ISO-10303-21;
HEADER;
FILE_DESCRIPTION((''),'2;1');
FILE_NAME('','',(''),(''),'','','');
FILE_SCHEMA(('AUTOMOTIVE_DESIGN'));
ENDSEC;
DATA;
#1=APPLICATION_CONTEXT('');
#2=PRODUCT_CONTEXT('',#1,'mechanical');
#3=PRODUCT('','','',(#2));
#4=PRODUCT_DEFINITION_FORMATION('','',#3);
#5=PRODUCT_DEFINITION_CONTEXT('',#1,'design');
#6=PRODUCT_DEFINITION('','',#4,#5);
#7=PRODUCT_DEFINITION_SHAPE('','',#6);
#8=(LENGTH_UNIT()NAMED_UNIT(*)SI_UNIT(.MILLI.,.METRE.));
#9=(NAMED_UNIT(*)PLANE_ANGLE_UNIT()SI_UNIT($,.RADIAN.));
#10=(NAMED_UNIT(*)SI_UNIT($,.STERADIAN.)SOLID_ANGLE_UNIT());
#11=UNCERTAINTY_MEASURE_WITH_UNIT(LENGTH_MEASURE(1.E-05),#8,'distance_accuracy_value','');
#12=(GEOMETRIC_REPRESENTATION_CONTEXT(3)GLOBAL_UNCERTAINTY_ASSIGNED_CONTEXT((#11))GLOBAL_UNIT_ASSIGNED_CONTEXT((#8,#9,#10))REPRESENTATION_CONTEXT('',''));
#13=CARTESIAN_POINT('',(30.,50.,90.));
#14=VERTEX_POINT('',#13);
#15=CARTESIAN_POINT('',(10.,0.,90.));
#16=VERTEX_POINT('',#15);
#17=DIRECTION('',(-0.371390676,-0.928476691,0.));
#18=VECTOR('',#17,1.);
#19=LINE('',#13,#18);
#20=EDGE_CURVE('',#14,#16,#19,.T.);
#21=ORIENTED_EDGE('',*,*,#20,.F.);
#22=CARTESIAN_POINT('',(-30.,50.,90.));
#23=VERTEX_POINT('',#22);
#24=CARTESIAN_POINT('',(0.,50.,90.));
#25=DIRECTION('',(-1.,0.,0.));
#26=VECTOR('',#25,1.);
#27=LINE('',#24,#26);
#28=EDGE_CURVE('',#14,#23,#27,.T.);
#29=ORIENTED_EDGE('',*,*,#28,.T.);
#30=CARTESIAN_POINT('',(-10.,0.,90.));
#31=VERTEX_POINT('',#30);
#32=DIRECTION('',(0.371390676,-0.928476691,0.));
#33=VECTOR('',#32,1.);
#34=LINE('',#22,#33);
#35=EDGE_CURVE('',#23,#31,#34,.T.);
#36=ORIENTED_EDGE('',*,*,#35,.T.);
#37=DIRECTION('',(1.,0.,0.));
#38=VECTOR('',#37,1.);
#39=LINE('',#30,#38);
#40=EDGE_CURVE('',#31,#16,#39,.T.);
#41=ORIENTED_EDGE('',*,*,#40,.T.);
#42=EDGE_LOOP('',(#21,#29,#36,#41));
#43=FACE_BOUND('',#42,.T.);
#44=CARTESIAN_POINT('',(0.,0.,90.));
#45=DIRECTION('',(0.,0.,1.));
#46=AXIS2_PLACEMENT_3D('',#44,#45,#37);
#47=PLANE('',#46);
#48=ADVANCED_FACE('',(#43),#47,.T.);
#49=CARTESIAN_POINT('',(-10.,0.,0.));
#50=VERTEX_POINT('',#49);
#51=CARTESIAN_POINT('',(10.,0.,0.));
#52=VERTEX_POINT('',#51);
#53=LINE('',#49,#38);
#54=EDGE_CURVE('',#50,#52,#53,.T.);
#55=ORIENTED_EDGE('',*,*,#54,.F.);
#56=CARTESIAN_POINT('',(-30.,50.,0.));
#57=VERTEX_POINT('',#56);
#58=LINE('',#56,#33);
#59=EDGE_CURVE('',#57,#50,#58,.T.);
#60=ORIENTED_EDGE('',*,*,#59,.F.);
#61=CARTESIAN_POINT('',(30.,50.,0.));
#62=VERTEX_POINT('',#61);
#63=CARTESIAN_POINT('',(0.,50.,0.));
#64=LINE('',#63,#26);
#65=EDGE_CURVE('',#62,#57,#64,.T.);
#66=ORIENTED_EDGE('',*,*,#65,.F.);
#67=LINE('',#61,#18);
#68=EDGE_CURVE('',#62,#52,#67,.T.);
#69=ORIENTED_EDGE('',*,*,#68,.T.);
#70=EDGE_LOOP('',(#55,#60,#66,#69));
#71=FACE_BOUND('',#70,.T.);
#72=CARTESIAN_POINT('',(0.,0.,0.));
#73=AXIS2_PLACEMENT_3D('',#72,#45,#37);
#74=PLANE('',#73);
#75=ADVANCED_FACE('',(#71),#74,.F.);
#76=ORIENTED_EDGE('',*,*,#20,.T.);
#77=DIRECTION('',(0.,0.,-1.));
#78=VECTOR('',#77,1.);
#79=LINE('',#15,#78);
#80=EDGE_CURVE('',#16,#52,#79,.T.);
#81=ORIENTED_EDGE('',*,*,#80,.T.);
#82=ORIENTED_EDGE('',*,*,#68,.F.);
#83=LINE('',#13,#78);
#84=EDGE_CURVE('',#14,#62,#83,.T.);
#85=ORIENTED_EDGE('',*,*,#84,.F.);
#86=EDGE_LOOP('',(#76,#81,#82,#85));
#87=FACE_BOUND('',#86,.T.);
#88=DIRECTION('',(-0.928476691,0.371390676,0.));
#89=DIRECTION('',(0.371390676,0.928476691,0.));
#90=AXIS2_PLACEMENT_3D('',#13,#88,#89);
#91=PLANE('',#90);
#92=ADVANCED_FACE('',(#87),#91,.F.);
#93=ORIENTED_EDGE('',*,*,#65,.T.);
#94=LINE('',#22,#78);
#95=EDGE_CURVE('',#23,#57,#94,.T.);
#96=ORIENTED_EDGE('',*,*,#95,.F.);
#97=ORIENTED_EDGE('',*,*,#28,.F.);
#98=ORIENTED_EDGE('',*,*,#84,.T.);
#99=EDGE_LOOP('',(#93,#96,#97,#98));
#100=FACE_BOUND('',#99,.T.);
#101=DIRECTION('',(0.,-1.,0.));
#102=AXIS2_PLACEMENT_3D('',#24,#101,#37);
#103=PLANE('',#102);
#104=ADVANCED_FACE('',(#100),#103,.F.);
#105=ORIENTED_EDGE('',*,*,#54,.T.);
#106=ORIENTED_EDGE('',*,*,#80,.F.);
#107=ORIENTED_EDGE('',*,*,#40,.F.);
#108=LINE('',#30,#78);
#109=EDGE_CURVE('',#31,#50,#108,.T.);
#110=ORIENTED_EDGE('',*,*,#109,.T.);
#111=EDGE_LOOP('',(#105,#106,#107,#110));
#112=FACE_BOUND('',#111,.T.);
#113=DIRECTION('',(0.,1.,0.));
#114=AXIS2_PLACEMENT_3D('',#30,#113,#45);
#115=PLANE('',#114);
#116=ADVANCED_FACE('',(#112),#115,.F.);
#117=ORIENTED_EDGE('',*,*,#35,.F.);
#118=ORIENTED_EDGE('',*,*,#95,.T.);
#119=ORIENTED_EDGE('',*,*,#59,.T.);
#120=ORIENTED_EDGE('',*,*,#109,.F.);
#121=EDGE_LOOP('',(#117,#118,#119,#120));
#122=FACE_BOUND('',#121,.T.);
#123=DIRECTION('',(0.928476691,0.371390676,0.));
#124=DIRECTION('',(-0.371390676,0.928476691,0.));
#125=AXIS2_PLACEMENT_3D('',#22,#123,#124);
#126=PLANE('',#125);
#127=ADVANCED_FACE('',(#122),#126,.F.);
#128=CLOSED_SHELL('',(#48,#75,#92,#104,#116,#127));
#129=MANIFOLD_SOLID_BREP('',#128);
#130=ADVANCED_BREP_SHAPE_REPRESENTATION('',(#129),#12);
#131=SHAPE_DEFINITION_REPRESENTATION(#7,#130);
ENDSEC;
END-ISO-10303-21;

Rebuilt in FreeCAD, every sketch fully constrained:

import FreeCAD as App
import Part
import Sketcher
from FreeCAD import Vector
Q = App.Units.Quantity

doc = App.newDocument("Part")
body = doc.addObject("PartDesign::Body", "Body")

sketch1 = doc.addObject("Sketcher::SketchObject", "Sketch")
body.addObject(sketch1)
sketch1.AttachmentSupport = (doc.XY_Plane, [""])
sketch1.MapMode = "FlatFace"
sketch1.addGeometry(Part.LineSegment(Vector(0, 0, 0), Vector(0, 50, 0)), False)
sketch1.addGeometry(Part.LineSegment(Vector(0, 50, 0), Vector(-30, 50, 0)), False)
sketch1.addGeometry(Part.LineSegment(Vector(-30, 50, 0), Vector(-10, 0, 0)), False)
sketch1.addGeometry(Part.LineSegment(Vector(-10, 0, 0), Vector(0, 0, 0)), False)
sketch1.addConstraint(Sketcher.Constraint("Coincident", 0, 2, 1, 1))
sketch1.addConstraint(Sketcher.Constraint("Coincident", 1, 2, 2, 1))
sketch1.addConstraint(Sketcher.Constraint("Coincident", 2, 2, 3, 1))
sketch1.addConstraint(Sketcher.Constraint("Coincident", 3, 2, 0, 1))
sketch1.addConstraint(Sketcher.Constraint("Vertical", 0))
sketch1.addConstraint(Sketcher.Constraint("Horizontal", 1))
sketch1.addConstraint(Sketcher.Constraint("Horizontal", 3))
sketch1.addConstraint(Sketcher.Constraint("Coincident", 3, 2, -1, 1))
sketch1.addConstraint(Sketcher.Constraint("DistanceX", 1, 2, 1, 1, Q("30 mm")))
sketch1.addConstraint(Sketcher.Constraint("DistanceX", 3, 1, 3, 2, Q("10 mm")))
sketch1.addConstraint(Sketcher.Constraint("DistanceY", 0, 1, 0, 2, Q("50 mm")))
pad1 = doc.addObject("PartDesign::Pad", "Pad")
body.addObject(pad1)
pad1.Profile = sketch1
pad1.Length = 90
body2 = doc.addObject("PartDesign::Body", "Body001")
doc.recompute()

body2.BaseFeature = body
doc.recompute()

mirroring = doc.addObject("Part::Mirroring", "Mirroring")
mirroring.Source = body
mirroring.Base = Vector(0, 0, 0)
mirroring.Normal = Vector(1, 0, 0)
body3 = doc.addObject("PartDesign::Body", "Body002")
body3.BaseFeature = mirroring
boolean = doc.addObject("PartDesign::Boolean", "Boolean")
body2.addObject(boolean)
boolean.Type = "Fuse"
boolean.addObjects([body3])
doc.recompute()
mirroring.Visibility = False

doc.recompute()
